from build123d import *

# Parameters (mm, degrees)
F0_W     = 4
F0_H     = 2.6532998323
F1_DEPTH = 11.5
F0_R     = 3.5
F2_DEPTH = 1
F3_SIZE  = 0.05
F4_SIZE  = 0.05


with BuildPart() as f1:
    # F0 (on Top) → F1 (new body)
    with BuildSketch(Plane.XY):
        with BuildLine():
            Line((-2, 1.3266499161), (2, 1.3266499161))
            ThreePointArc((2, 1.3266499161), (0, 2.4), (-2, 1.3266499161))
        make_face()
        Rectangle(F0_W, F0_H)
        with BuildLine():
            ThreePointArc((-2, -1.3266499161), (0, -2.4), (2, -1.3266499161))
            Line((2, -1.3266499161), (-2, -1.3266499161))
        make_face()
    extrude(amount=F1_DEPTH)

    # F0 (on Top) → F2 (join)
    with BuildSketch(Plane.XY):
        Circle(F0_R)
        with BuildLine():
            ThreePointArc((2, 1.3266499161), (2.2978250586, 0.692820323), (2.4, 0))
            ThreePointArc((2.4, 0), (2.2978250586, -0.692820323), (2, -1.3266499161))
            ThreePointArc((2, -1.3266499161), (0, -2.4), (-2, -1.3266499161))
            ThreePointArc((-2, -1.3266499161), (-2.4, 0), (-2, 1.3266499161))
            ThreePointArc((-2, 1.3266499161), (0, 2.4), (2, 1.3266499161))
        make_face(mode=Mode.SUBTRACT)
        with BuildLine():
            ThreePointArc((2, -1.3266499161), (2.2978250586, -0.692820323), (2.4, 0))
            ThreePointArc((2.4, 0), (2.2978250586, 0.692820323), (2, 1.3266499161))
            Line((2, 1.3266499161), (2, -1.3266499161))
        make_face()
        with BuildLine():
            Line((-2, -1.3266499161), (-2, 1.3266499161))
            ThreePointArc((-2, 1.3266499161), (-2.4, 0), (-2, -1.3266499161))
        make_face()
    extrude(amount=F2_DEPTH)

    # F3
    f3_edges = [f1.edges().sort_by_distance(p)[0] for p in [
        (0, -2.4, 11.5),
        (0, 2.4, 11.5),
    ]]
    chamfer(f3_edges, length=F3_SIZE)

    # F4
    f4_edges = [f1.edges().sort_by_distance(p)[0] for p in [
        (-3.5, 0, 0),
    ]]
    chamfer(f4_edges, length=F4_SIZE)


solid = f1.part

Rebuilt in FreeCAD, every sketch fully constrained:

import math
import FreeCAD as App
import Part
import Sketcher


def edges_at(feature, points):
    """Names of the edges that pass closest to the given points."""
    edges = feature.Shape.Edges
    near = lambda p: min(range(len(edges)), key=lambda i: edges[i].distToShape(Part.Vertex(*p))[0])
    return sorted({f"Edge{near(p) + 1}" for p in points})

doc = App.newDocument("Part")
body = doc.addObject("PartDesign::Body", "Body")

sketch1 = doc.addObject("Sketcher::SketchObject", "Sketch")
body.addObject(sketch1)
sketch1.AttachmentSupport = (doc.XY_Plane, [""])
sketch1.MapMode = "FlatFace"
sketch1.addGeometry(Part.ArcOfCircle(Part.Circle(App.Vector(0, 0, 0), App.Vector(0, 0, 1), 2.4), math.radians(34), math.radians(146)), False)
sketch1.addGeometry(Part.LineSegment(App.Vector(-2, 1.3, 0), App.Vector(-2, -1.3, 0)), False)
sketch1.addGeometry(Part.ArcOfCircle(Part.Circle(App.Vector(0, 0, 0), App.Vector(0, 0, 1), 2.4), math.radians(-146), math.radians(-34)), False)
sketch1.addGeometry(Part.LineSegment(App.Vector(2, -1.3, 0), App.Vector(2, 1.3, 0)), False)
sketch1.addConstraint(Sketcher.Constraint("Coincident", 0, 2, 1, 1))
sketch1.addConstraint(Sketcher.Constraint("Coincident", 1, 2, 2, 1))
sketch1.addConstraint(Sketcher.Constraint("Coincident", 2, 2, 3, 1))
sketch1.addConstraint(Sketcher.Constraint("Coincident", 3, 2, 0, 1))
sketch1.addConstraint(Sketcher.Constraint("Vertical", 1))
sketch1.addConstraint(Sketcher.Constraint("Vertical", 3))
sketch1.addConstraint(Sketcher.Constraint("Coincident", 0, 3, -1, 1))
sketch1.addConstraint(Sketcher.Constraint("Coincident", 2, 3, -1, 1))
sketch1.addConstraint(Sketcher.Constraint("Equal", 0, 2))
sketch1.addConstraint(Sketcher.Constraint("Horizontal", 1, 2, 2, 2))
sketch1.addConstraint(Sketcher.Constraint("Radius", 0, 2.4))
sketch1.addConstraint(Sketcher.Constraint("DistanceX", 0, 2, -1, 1, 2.0))
pad1 = doc.addObject("PartDesign::Pad", "Pad")
body.addObject(pad1)
pad1.Profile = sketch1
pad1.Length = 11.5

sketch2 = doc.addObject("Sketcher::SketchObject", "Sketch001")
body.addObject(sketch2)
sketch2.AttachmentSupport = (doc.XY_Plane, [""])
sketch2.MapMode = "FlatFace"
sketch2.addGeometry(Part.Circle(App.Vector(0, 0, 0), App.Vector(0, 0, 1), 3.5), False)
sketch2.addGeometry(Part.ArcOfCircle(Part.Circle(App.Vector(0, 0, 0), App.Vector(0, 0, 1), 2.4), math.radians(34), math.radians(146)), False)
sketch2.addGeometry(Part.LineSegment(App.Vector(2, 1.3, 0), App.Vector(2, -1.3, 0)), False)
sketch2.addGeometry(Part.ArcOfCircle(Part.Circle(App.Vector(0, 0, 0), App.Vector(0, 0, 1), 2.4), math.radians(-146), math.radians(-34)), False)
sketch2.addGeometry(Part.LineSegment(App.Vector(-2, -1.3, 0), App.Vector(-2, 1.3, 0)), False)
sketch2.addConstraint(Sketcher.Constraint("Coincident", 1, 1, 2, 1))
sketch2.addConstraint(Sketcher.Constraint("Coincident", 2, 2, 3, 2))
sketch2.addConstraint(Sketcher.Constraint("Coincident", 3, 1, 4, 1))
sketch2.addConstraint(Sketcher.Constraint("Coincident", 4, 2, 1, 2))
sketch2.addConstraint(Sketcher.Constraint("Vertical", 2))
sketch2.addConstraint(Sketcher.Constraint("Vertical", 4))
sketch2.addConstraint(Sketcher.Constraint("Coincident", 0, 3, -1, 1))
sketch2.addConstraint(Sketcher.Constraint("Coincident", 1, 3, -1, 1))
sketch2.addConstraint(Sketcher.Constraint("Coincident", 3, 3, -1, 1))
sketch2.addConstraint(Sketcher.Constraint("Equal", 1, 3))
sketch2.addConstraint(Sketcher.Constraint("Horizontal", 2, 2, 3, 1))
sketch2.addConstraint(Sketcher.Constraint("Diameter", 0, 7.0))
sketch2.addConstraint(Sketcher.Constraint("Radius", 1, 2.4))
sketch2.addConstraint(Sketcher.Constraint("DistanceX", -1, 1, 1, 1, 2.0))
pad2 = doc.addObject("PartDesign::Pad", "Pad001")
body.addObject(pad2)
pad2.Profile = sketch2
pad2.Length = 1
doc.recompute()

chamfer = doc.addObject("PartDesign::Chamfer", "Chamfer")
body.addObject(chamfer)
chamfer.Base = (pad2, edges_at(pad2, [(0, -2.4, 11.5), (0, 2.4, 11.5)]))
chamfer.Size = 0.05
doc.recompute()

chamfer2 = doc.addObject("PartDesign::Chamfer", "Chamfer001")
body.addObject(chamfer2)
chamfer2.Base = (chamfer, edges_at(chamfer, [(-3.5, 0, 0)]))
chamfer2.Size = 0.05

doc.recompute()
